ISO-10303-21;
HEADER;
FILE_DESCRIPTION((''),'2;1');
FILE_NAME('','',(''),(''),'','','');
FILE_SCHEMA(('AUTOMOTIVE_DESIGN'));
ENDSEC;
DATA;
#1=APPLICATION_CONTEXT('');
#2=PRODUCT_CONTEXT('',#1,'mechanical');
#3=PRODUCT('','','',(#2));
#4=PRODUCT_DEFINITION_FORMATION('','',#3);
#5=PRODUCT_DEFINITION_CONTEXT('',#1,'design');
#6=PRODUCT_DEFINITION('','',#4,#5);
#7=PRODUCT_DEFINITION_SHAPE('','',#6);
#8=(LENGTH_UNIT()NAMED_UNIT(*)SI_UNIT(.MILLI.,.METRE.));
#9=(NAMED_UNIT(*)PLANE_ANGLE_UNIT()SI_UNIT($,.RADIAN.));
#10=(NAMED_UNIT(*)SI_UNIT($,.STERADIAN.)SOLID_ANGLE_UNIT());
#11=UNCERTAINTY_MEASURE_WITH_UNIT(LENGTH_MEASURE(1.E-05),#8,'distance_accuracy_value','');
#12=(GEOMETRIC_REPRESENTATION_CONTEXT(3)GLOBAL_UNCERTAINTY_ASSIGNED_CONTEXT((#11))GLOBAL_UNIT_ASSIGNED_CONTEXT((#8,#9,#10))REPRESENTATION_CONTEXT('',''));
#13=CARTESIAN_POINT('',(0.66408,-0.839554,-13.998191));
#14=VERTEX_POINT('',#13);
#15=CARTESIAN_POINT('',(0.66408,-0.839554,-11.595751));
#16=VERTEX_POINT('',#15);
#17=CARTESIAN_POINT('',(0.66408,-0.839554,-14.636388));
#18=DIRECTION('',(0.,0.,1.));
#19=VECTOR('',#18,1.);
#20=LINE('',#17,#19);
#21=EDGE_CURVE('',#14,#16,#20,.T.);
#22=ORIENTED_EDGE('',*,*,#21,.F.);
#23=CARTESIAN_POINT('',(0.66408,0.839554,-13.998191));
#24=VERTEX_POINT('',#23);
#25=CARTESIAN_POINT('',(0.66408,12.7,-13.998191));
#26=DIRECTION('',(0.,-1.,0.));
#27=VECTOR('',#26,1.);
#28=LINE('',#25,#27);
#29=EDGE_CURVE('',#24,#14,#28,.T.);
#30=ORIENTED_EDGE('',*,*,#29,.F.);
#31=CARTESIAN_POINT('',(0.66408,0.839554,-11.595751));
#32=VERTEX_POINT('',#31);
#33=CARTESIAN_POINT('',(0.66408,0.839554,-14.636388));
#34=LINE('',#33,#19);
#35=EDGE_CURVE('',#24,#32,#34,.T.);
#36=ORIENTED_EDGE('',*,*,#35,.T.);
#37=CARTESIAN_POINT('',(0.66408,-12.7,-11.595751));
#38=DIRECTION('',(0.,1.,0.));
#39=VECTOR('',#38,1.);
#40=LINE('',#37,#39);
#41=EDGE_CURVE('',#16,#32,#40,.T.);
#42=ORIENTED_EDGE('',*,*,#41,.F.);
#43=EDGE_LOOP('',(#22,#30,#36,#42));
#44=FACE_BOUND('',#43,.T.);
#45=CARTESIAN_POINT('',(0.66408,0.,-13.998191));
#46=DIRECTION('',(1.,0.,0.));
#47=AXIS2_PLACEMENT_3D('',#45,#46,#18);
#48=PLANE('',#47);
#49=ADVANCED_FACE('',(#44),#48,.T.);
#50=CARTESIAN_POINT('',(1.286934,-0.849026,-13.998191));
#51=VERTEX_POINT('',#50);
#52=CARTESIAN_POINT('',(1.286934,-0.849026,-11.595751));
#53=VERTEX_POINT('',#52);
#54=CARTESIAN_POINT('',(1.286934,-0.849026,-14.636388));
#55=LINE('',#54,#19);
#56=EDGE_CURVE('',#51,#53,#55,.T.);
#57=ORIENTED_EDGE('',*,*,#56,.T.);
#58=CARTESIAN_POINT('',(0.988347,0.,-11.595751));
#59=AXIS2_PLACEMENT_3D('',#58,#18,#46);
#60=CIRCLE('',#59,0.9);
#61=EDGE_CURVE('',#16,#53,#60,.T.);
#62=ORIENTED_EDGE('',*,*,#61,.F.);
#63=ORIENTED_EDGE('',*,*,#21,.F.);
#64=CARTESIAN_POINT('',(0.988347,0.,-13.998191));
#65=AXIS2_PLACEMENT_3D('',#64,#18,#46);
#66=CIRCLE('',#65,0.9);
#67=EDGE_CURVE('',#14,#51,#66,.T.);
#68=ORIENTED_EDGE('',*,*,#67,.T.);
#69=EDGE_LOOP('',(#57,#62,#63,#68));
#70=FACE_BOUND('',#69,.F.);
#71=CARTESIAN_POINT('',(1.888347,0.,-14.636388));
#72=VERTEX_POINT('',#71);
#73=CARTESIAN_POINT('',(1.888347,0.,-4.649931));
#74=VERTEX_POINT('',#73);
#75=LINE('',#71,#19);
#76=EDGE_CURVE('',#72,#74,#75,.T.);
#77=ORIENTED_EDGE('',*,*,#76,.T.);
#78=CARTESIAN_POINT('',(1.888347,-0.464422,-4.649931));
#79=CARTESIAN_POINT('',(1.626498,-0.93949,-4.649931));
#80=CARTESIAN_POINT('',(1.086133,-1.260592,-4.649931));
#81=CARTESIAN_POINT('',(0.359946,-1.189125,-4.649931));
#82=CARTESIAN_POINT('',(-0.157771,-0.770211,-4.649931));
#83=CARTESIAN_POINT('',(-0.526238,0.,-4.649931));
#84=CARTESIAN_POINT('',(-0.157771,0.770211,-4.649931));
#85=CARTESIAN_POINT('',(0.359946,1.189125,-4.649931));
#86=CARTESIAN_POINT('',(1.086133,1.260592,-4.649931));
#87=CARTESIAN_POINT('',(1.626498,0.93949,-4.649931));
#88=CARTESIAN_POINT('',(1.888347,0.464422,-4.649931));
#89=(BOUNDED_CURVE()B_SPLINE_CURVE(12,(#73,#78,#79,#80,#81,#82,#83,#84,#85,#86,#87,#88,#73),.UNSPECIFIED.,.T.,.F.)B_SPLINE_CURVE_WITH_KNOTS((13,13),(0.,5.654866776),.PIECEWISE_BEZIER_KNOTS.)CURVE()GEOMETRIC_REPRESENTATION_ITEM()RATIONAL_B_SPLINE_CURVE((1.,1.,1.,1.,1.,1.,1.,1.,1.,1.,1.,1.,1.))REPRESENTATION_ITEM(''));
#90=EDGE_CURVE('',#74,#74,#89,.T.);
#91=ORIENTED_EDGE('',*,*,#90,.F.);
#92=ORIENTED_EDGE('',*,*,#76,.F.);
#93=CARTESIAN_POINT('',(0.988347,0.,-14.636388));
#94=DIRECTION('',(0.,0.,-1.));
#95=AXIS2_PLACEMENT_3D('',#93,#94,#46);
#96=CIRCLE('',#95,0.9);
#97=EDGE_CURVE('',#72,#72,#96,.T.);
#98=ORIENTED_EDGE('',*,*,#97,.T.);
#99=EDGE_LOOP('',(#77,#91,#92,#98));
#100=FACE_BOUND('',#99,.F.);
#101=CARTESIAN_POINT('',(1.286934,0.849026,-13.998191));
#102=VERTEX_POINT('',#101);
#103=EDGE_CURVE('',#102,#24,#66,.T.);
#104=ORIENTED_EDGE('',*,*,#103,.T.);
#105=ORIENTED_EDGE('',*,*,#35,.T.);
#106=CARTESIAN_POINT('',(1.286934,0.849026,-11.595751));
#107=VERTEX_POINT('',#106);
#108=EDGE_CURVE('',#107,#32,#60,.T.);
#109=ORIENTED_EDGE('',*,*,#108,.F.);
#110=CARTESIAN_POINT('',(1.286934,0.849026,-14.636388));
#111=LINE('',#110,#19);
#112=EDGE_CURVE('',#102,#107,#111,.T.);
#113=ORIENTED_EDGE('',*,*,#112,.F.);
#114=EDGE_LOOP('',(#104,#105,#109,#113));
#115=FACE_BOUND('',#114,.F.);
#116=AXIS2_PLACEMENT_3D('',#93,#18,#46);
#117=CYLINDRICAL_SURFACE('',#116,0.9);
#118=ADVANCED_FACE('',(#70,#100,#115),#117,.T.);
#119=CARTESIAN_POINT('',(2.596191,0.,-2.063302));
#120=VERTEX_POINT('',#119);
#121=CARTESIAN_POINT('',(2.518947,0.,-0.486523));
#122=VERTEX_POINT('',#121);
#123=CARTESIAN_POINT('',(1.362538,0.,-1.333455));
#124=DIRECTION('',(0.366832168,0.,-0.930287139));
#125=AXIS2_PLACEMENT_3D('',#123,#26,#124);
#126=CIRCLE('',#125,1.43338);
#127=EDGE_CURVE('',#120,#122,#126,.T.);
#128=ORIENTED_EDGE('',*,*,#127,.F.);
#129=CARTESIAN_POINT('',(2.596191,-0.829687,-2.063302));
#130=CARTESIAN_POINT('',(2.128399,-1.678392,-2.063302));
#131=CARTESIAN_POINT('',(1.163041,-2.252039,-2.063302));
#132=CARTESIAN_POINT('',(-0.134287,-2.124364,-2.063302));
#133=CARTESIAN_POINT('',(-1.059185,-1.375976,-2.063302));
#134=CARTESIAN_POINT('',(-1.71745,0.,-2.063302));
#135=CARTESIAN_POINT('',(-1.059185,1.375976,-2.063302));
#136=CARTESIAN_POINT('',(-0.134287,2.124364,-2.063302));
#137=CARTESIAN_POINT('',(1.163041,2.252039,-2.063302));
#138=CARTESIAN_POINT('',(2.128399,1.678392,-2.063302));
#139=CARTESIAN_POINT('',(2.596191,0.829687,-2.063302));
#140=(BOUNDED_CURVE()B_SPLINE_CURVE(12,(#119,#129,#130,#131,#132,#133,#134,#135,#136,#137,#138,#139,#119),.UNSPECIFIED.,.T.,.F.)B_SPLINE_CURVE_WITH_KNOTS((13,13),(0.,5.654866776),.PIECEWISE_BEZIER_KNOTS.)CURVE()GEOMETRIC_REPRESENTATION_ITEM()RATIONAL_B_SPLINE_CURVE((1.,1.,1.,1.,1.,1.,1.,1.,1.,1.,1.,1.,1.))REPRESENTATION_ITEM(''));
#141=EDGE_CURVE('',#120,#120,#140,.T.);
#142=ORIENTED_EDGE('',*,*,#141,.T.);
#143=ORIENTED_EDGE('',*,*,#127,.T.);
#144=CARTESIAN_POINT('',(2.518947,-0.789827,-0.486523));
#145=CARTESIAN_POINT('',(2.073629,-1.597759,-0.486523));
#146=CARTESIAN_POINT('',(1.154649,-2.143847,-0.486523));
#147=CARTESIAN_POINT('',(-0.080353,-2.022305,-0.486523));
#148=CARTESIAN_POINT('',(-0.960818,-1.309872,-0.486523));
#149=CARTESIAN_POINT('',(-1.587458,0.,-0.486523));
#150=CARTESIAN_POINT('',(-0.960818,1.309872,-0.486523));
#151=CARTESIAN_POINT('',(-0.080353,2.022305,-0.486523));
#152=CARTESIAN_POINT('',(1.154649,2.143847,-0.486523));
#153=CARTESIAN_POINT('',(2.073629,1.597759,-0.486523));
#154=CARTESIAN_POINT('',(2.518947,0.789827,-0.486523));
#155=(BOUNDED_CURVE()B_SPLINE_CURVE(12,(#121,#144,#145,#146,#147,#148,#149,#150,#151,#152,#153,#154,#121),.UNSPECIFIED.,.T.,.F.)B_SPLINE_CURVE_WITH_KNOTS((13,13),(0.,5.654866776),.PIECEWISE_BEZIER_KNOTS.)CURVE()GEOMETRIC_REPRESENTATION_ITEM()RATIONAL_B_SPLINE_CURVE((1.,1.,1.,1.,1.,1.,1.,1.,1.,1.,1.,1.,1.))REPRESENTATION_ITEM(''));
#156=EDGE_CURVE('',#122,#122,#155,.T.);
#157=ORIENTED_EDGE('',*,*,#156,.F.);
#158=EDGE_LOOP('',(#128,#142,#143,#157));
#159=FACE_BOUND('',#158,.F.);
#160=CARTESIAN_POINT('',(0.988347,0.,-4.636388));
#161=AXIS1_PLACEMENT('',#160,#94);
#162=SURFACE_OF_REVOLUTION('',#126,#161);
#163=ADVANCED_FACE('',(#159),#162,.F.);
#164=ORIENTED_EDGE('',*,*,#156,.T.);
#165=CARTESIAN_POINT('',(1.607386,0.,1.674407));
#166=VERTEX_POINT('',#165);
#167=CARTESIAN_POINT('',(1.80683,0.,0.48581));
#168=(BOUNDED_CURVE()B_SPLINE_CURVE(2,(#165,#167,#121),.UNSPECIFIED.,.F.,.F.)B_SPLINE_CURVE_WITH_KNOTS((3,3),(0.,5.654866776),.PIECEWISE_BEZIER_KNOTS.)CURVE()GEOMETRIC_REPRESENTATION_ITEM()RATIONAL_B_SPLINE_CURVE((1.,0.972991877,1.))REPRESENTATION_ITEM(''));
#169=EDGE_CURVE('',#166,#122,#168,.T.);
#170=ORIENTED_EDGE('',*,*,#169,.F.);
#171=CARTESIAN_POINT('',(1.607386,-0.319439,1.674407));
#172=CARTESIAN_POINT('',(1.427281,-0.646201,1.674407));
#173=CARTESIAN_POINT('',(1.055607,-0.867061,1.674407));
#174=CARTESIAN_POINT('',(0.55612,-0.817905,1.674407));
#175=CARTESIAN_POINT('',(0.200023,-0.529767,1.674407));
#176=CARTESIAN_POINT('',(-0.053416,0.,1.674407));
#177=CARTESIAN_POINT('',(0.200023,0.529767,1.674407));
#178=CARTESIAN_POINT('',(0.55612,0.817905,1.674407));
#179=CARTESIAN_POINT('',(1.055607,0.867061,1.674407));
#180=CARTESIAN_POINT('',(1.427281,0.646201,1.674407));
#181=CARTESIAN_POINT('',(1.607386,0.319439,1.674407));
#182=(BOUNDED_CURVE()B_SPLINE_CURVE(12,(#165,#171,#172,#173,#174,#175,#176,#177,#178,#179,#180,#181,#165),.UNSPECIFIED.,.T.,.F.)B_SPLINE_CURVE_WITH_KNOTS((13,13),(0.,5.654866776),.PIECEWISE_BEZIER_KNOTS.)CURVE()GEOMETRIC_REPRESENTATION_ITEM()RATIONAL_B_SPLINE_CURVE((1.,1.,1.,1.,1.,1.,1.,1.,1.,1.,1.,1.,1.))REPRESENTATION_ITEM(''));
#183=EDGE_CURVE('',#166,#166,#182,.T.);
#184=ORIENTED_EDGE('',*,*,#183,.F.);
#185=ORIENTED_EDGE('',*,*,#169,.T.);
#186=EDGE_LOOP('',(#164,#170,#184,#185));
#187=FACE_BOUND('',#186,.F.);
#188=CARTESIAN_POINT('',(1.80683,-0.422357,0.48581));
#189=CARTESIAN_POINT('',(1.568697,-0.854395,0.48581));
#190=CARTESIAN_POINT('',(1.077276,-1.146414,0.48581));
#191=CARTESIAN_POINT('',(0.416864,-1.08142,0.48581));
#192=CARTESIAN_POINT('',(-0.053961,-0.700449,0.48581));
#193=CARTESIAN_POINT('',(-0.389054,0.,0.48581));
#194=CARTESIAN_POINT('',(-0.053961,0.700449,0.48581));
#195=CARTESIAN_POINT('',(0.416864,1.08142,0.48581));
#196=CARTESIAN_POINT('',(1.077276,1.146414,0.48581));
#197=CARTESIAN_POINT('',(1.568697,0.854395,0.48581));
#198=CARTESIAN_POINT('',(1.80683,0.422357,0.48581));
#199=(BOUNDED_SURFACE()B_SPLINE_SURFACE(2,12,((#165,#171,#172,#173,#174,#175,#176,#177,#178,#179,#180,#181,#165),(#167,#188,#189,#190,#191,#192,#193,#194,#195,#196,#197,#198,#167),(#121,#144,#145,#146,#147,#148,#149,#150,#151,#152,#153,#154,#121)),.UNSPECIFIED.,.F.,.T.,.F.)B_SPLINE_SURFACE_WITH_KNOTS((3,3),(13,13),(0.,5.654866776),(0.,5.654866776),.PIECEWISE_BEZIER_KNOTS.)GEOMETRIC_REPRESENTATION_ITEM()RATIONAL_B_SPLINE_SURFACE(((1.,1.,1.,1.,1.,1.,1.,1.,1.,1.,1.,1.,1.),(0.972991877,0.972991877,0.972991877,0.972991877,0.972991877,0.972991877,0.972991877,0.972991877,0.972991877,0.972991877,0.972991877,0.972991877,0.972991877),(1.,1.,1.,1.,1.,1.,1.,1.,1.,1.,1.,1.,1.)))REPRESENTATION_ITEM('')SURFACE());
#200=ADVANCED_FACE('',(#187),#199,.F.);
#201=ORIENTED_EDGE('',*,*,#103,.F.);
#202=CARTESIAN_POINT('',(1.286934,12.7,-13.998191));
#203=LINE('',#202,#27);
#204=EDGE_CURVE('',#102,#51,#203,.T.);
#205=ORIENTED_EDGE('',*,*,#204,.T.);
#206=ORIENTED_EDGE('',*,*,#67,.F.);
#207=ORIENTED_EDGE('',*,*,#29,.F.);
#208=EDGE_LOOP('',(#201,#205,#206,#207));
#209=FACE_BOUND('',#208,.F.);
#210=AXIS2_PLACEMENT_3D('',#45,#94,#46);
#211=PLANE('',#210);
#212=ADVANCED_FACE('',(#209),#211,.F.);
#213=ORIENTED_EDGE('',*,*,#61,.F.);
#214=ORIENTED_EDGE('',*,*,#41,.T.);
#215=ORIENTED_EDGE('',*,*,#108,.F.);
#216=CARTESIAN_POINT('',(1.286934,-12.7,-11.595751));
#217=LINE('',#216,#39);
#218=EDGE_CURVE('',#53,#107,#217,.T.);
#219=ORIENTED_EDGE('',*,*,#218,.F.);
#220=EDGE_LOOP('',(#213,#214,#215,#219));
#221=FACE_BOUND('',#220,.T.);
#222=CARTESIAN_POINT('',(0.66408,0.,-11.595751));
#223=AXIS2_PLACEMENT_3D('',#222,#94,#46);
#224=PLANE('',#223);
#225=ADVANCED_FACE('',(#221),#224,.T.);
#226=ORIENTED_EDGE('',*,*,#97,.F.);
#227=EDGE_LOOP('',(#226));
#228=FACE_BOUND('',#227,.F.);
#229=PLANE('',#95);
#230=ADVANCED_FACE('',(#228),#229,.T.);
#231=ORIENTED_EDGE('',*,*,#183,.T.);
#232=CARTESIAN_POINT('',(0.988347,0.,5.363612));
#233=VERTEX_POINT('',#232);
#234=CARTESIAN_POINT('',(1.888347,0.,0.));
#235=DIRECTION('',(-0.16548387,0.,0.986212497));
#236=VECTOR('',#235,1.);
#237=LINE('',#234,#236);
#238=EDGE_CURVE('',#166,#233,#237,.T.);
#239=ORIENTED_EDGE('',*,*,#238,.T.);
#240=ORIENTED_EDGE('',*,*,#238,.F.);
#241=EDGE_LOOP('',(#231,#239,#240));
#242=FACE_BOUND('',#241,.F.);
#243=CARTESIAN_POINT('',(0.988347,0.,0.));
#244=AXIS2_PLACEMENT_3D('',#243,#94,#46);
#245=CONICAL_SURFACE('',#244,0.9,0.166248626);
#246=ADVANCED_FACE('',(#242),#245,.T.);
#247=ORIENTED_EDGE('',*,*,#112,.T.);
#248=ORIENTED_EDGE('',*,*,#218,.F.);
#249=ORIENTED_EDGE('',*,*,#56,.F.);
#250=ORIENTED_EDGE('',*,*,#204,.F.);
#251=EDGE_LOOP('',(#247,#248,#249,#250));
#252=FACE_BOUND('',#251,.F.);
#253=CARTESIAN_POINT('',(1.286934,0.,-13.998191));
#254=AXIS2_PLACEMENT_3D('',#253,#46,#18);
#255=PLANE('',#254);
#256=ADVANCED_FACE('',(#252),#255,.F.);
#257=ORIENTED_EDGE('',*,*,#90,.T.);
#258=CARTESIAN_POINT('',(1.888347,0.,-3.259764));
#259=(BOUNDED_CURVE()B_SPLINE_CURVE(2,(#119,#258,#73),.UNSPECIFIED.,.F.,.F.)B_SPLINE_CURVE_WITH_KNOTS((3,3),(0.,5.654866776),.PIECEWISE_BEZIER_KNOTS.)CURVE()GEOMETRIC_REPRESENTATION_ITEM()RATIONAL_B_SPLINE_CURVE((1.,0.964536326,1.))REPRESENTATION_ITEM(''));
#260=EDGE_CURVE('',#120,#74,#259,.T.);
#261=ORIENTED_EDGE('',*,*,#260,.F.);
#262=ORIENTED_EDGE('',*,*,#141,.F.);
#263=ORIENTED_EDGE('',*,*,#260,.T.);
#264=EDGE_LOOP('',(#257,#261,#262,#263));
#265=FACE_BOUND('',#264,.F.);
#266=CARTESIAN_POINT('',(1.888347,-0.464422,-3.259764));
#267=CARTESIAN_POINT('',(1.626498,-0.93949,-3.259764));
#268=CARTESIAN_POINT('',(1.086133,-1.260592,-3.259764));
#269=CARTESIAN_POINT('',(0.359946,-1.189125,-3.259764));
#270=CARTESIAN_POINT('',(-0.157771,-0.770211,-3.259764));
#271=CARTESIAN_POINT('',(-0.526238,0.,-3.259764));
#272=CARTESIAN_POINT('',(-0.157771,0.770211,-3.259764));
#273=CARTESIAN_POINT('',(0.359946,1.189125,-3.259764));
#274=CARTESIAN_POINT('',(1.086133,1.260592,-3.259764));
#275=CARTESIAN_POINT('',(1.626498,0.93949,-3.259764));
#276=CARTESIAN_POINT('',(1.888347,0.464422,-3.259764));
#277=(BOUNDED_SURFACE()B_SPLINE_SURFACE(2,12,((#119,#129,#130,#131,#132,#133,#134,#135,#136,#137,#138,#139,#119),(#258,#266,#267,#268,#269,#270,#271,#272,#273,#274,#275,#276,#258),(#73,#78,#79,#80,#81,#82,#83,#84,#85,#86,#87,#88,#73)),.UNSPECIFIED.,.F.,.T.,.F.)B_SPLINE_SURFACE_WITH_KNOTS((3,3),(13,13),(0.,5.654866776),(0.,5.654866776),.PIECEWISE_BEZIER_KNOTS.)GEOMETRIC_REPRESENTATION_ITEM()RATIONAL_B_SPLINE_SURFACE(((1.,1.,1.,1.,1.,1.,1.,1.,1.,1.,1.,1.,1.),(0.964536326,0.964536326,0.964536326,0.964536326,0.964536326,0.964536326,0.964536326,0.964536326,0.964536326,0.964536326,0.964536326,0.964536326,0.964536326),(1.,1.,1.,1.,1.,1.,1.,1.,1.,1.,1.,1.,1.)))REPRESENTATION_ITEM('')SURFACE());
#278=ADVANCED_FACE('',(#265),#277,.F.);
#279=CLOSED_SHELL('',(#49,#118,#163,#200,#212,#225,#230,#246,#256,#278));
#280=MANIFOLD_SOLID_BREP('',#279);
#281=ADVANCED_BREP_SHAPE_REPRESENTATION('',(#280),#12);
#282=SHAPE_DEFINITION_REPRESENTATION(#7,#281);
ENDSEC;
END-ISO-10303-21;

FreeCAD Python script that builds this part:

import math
import FreeCAD as App
import Part
import Sketcher

V = App.Vector
Q = App.Units.Quantity


def edges_at(feature, points):
    """Names of the edges that pass closest to the given points."""
    edges = feature.Shape.Edges
    near = lambda p: min(range(len(edges)), key=lambda i: edges[i].distToShape(Part.Vertex(*p))[0])
    return sorted({f"Edge{near(p) + 1}" for p in points})

doc = App.newDocument("Part")
body = doc.addObject("PartDesign::Body", "Body")

sketch1 = body.newObject("Sketcher::SketchObject", "Sketch")
sketch1.AttachmentSupport = (doc.getObject("XZ_Plane"), [""])
sketch1.MapMode = "FlatFace"
sketch1.addGeometry(Part.LineSegment(V(1.888347, 0, 0), V(0.988347, 5.363612, 0)), False)
sketch1.addGeometry(Part.LineSegment(V(0.988347, 5.363612, 0), V(0.988347, -14.636388, 0)), False)
sketch1.addGeometry(Part.LineSegment(V(0.988347, -14.636388, 0), V(1.888347, -14.636388, 0)), False)
sketch1.addGeometry(Part.LineSegment(V(1.888347, -14.636388, 0), V(1.888347, -2.66691, 0)), False)
sketch1.addGeometry(Part.ArcOfCircle(Part.Circle(V(1.362538, -1.333455, 0), V(0, 0, 1), 1.43338), math.radians(-68.479619), math.radians(68.479619)), False)
sketch1.addGeometry(Part.LineSegment(V(0.988347, 5.363612, 0), V(0.988347, -14.636388, 0)), True)
sketch1.addConstraint(Sketcher.Constraint("Coincident", 0, 2, 1, 1))
sketch1.addConstraint(Sketcher.Constraint("Coincident", 1, 2, 2, 1))
sketch1.addConstraint(Sketcher.Constraint("Coincident", 2, 2, 3, 1))
sketch1.addConstraint(Sketcher.Constraint("Coincident", 3, 2, 4, 1))
sketch1.addConstraint(Sketcher.Constraint("Coincident", 4, 2, 0, 1))
sketch1.addConstraint(Sketcher.Constraint("Vertical", 1))
sketch1.addConstraint(Sketcher.Constraint("Horizontal", 2))
sketch1.addConstraint(Sketcher.Constraint("Vertical", 3))
sketch1.addConstraint(Sketcher.Constraint("Vertical", 5))
sketch1.addConstraint(Sketcher.Constraint("Coincident", 5, 1, 0, 2))
sketch1.addConstraint(Sketcher.Constraint("PointOnObject", 4, 2, -1))
sketch1.addConstraint(Sketcher.Constraint("Horizontal", 2, 2, 5, 2))
sketch1.addConstraint(Sketcher.Constraint("Vertical", 3, 2, 4, 2))
sketch1.addConstraint(Sketcher.Constraint("DistanceY", 1, 2, 1, 1, Q("20 mm")))
sketch1.addConstraint(Sketcher.Constraint("DistanceX", 2, 1, 2, 2, Q("0.9 mm")))
sketch1.addConstraint(Sketcher.Constraint("Radius", 4, Q("1.43338 mm")))
sketch1.addConstraint(Sketcher.Constraint("DistanceY", 3, 1, 3, 2, Q("11.969478 mm")))
sketch1.addConstraint(Sketcher.Constraint("DistanceY", -1, 1, 0, 2, Q("5.363612 mm")))
sketch1.addConstraint(Sketcher.Constraint("DistanceX", -1, 1, 4, 3, Q("1.362538 mm")))
revolution = body.newObject("PartDesign::Revolution", "Revolution")
revolution.Profile = sketch1
revolution.ReferenceAxis = (sketch1, ["Axis0"])
revolution.Angle = 360

sketch2 = body.newObject("Sketcher::SketchObject", "Sketch001")
sketch2.AttachmentSupport = (doc.getObject("XZ_Plane"), [""])
sketch2.MapMode = "FlatFace"
sketch2.addGeometry(Part.LineSegment(V(0.66408, -11.595751, 0), V(0.66408, -13.998191, 0)), False)
sketch2.addGeometry(Part.LineSegment(V(0.66408, -13.998191, 0), V(1.286934, -13.998191, 0)), False)
sketch2.addGeometry(Part.LineSegment(V(1.286934, -13.998191, 0), V(1.286934, -11.595751, 0)), False)
sketch2.addGeometry(Part.LineSegment(V(1.286934, -11.595751, 0), V(0.66408, -11.595751, 0)), False)
sketch2.addConstraint(Sketcher.Constraint("Coincident", 0, 2, 1, 1))
sketch2.addConstraint(Sketcher.Constraint("Coincident", 1, 2, 2, 1))
sketch2.addConstraint(Sketcher.Constraint("Coincident", 2, 2, 3, 1))
sketch2.addConstraint(Sketcher.Constraint("Coincident", 3, 2, 0, 1))
sketch2.addConstraint(Sketcher.Constraint("Vertical", 0))
sketch2.addConstraint(Sketcher.Constraint("Horizontal", 1))
sketch2.addConstraint(Sketcher.Constraint("Vertical", 2))
sketch2.addConstraint(Sketcher.Constraint("Horizontal", 3))
sketch2.addConstraint(Sketcher.Constraint("DistanceY", 0, 2, 0, 1, Q("2.40244 mm")))
sketch2.addConstraint(Sketcher.Constraint("DistanceX", 1, 1, 1, 2, Q("0.622855 mm")))
sketch2.addConstraint(Sketcher.Constraint("DistanceX", -1, 1, 0, 2, Q("0.66408 mm")))
sketch2.addConstraint(Sketcher.Constraint("DistanceY", 0, 2, -1, 1, Q("13.998191 mm")))
pocket1 = body.newObject("PartDesign::Pocket", "Pocket")
pocket1.Profile = sketch2
pocket1.Length = 25.4
pocket1.Midplane = True
doc.recompute()

fillet = body.newObject("PartDesign::Fillet", "Fillet")
fillet.Base = (pocket1, edges_at(pocket1, [(0.088, 0, -2.667), (0.088, 0, 0)]))
fillet.Radius = 5.08

doc.recompute()
